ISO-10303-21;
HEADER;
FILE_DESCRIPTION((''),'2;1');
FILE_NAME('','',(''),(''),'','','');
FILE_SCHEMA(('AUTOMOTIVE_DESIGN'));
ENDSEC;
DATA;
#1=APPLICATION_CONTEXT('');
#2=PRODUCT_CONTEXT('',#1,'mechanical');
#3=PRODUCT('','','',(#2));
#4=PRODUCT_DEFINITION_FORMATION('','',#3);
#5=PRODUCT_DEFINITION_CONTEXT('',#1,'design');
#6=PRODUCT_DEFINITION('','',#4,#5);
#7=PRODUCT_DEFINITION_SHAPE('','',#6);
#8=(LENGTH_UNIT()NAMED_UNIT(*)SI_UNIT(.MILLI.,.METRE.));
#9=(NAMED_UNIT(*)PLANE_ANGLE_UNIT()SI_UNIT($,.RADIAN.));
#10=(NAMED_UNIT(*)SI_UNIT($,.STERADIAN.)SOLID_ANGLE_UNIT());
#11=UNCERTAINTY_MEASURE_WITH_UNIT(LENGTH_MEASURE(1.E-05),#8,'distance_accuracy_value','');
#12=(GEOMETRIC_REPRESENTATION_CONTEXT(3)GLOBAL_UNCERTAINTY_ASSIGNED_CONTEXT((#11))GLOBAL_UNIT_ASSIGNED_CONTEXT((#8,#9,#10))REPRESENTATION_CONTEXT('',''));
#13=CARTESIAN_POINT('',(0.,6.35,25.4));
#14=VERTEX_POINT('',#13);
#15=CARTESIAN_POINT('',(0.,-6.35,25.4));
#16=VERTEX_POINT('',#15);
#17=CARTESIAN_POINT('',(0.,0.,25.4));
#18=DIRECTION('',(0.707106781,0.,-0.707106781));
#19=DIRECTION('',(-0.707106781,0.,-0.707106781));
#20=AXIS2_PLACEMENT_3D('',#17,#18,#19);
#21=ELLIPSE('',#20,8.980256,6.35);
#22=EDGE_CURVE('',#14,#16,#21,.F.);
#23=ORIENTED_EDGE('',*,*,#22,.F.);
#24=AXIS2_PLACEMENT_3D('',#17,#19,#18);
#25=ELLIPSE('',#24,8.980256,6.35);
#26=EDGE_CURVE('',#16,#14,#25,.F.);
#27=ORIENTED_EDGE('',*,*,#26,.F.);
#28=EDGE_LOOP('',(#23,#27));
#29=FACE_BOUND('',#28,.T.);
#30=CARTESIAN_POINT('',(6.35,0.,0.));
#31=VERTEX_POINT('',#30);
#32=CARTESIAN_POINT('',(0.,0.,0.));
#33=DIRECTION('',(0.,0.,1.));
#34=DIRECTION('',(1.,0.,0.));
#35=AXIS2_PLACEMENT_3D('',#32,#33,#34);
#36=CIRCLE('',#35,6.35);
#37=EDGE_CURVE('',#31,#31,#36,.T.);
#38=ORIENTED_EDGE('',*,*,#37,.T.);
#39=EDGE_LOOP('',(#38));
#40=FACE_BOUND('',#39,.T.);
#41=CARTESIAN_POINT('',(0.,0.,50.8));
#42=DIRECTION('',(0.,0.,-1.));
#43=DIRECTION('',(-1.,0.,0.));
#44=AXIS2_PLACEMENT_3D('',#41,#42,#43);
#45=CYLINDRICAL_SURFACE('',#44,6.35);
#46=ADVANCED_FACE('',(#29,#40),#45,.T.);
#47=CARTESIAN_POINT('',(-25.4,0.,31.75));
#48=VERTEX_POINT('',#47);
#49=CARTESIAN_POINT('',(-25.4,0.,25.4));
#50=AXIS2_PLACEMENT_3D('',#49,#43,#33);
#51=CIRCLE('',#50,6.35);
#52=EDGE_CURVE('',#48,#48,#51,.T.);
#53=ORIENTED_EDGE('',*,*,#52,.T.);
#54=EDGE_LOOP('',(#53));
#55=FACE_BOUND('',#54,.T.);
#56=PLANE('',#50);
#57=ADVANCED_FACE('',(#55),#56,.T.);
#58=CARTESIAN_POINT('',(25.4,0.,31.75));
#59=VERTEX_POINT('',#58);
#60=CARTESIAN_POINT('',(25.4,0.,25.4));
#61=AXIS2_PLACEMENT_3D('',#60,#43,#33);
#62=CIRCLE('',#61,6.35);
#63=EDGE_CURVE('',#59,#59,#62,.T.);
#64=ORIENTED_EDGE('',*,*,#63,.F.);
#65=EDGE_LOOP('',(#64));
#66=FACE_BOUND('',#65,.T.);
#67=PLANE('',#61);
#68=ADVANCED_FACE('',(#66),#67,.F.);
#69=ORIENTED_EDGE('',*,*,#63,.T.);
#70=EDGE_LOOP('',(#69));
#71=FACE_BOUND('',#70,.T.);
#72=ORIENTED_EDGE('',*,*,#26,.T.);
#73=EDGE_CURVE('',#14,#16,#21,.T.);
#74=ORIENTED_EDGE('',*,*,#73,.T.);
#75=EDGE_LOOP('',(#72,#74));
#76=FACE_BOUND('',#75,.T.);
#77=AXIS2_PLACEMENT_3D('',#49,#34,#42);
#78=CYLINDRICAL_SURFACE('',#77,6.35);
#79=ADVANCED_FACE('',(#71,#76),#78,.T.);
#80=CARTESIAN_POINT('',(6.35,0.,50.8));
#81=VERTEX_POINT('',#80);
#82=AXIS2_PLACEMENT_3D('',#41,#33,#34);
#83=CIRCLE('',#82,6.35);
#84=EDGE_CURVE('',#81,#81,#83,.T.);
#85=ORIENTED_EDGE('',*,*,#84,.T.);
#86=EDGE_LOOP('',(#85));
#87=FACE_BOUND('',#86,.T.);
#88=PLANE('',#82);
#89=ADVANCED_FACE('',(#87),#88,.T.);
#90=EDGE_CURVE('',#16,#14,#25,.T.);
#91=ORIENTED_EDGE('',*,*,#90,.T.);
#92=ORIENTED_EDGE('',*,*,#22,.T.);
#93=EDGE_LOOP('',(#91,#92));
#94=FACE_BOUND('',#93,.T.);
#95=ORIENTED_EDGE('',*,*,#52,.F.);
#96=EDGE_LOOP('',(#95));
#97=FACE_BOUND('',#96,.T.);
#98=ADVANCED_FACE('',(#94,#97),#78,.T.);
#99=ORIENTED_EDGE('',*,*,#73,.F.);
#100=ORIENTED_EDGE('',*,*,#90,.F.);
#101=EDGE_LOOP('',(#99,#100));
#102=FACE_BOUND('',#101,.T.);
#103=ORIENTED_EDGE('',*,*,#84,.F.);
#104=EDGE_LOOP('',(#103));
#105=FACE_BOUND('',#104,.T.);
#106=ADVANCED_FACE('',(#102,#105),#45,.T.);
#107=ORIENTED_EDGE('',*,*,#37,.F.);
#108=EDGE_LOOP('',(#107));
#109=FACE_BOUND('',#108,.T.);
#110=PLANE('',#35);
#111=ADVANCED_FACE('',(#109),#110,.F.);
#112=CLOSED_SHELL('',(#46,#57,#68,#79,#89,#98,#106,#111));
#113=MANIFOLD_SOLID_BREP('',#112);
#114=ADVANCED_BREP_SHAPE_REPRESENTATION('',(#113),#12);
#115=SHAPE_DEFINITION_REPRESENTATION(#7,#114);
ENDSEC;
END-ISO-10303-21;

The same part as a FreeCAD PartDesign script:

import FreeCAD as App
import Part
import Sketcher

V = App.Vector
Q = App.Units.Quantity

doc = App.newDocument("Part")
params = doc.addObject("Spreadsheet::Sheet", "Params")
for row, (alias, value) in enumerate([
    ("sketch1_diameter", "0.5 in"),
    ("pad1_length", "2 in"),
], start=1):
    params.set(f"A{row}", alias)
    params.set(f"B{row}", "=" + value)
    params.setAlias(f"B{row}", alias)

body = doc.addObject("PartDesign::Body", "Body")

# Sketch on XY plane
sketch1 = body.newObject("Sketcher::SketchObject", "Sketch")
sketch1.AttachmentSupport = (doc.getObject("XY_Plane"), [""])
sketch1.MapMode = "FlatFace"
sketch1.addGeometry(Part.Circle(V(0, 0, 0), V(0, 0, 1), 6), False)
sketch1.addConstraint([
    Sketcher.Constraint("Coincident", 0, 3, -1, 1),
    Sketcher.Constraint("Diameter", 0, Q("0.5 in")),
])
sketch1.setExpression("Constraints[1]", "Params.sketch1_diameter")
pad1 = body.newObject("PartDesign::Pad", "Pad")
pad1.Profile = sketch1
pad1.setExpression("Length", "Params.pad1_length")
doc.recompute()

datumline = body.newObject("PartDesign::Line", "DatumLine")
datumline.Placement = App.Placement(V(0, 0, 25.4), App.Rotation(V(0, 0, 1), V(0, -1, 0)))
polarpattern = body.newObject("PartDesign::PolarPattern", "PolarPattern")
polarpattern.Originals = [pad1]
polarpattern.Axis = (datumline, [""])
polarpattern.Angle = 90
polarpattern.Occurrences = 2
body.Tip = polarpattern

doc.recompute()
